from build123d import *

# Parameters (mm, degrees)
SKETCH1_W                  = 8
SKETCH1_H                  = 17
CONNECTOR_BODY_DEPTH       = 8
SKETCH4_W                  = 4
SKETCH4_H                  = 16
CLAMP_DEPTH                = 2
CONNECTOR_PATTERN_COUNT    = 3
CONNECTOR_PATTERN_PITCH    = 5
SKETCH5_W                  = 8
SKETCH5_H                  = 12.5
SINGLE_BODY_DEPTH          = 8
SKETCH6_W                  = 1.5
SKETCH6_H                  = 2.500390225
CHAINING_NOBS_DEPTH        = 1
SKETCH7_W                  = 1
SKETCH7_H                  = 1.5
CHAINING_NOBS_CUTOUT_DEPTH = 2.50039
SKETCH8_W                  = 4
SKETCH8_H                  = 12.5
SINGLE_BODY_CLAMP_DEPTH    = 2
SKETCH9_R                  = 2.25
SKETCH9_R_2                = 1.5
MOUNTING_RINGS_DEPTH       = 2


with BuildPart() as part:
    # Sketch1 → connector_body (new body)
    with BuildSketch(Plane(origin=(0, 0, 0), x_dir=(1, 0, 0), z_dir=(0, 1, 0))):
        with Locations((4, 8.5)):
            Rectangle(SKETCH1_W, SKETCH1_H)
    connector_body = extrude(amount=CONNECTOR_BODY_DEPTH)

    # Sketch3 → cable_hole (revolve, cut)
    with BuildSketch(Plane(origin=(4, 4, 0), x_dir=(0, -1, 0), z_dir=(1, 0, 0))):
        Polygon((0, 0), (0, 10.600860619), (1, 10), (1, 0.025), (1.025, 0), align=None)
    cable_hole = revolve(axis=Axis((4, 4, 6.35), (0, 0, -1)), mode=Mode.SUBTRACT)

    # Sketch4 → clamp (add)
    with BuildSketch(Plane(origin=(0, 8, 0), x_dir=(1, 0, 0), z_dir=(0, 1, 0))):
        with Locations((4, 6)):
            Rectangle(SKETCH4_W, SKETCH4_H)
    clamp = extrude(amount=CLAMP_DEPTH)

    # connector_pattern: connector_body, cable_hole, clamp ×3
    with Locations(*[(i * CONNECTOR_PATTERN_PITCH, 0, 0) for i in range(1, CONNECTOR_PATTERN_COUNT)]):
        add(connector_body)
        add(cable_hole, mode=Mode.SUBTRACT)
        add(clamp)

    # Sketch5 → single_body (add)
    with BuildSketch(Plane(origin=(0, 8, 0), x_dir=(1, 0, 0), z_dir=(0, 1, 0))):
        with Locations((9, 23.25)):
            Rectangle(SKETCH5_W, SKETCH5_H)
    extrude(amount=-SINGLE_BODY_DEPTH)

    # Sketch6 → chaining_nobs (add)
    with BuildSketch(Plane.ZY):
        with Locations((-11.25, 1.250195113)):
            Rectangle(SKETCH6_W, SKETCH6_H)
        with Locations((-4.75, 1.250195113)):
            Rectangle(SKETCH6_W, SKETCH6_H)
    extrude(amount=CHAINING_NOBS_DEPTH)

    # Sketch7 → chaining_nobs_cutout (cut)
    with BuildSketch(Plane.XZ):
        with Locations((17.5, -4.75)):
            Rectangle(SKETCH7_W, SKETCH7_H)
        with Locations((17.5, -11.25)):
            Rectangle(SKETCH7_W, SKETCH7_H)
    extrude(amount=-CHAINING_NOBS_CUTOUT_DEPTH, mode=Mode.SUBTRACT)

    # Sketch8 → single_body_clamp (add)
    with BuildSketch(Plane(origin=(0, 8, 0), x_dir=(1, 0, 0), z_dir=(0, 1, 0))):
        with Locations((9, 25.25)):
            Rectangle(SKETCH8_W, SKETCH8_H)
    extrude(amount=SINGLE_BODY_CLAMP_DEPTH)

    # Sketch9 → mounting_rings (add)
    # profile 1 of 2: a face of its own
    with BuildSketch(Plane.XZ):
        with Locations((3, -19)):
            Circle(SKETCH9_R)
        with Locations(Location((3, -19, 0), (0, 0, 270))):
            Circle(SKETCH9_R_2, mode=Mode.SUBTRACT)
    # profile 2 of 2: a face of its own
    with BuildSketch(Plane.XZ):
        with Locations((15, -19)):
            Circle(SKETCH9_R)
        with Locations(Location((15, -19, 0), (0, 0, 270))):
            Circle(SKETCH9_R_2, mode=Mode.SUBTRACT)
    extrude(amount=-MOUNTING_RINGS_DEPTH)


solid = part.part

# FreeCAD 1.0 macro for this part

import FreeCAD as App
import Part
import Sketcher
Q = App.Units.Quantity

doc = App.newDocument("Part")
body = doc.addObject("PartDesign::Body", "Body")

sketch1 = body.newObject("Sketcher::SketchObject", "Sketch")
sketch1.AttachmentSupport = (doc.getObject("XZ_Plane"), [""])
sketch1.MapMode = "FlatFace"
sketch1.addGeometry([
    Part.LineSegment(App.Vector(0, -17, 0), App.Vector(0, 0, 0)),
    Part.LineSegment(App.Vector(0, 0, 0), App.Vector(8, 0, 0)),
    Part.LineSegment(App.Vector(8, 0, 0), App.Vector(8, -17, 0)),
    Part.LineSegment(App.Vector(8, -17, 0), App.Vector(0, -17, 0)),
], False)
sketch1.addConstraint([
    Sketcher.Constraint("Coincident", 0, 2, 1, 1),
    Sketcher.Constraint("Coincident", 1, 2, 2, 1),
    Sketcher.Constraint("Coincident", 2, 2, 3, 1),
    Sketcher.Constraint("Coincident", 3, 2, 0, 1),
    Sketcher.Constraint("Vertical", 0),
    Sketcher.Constraint("Horizontal", 1),
    Sketcher.Constraint("Vertical", 2),
    Sketcher.Constraint("Horizontal", 3),
    Sketcher.Constraint("Coincident", 0, 2, -1, 1),
    Sketcher.Constraint("DistanceX", 1, 1, 1, 2, Q("8 mm")),
    Sketcher.Constraint("DistanceY", 0, 1, 0, 2, Q("17 mm")),
])
pad1 = body.newObject("PartDesign::Pad", "Pad")
pad1.Profile = sketch1
pad1.Length = 8
pad1.Reversed = True

sketch2 = body.newObject("Sketcher::SketchObject", "Sketch001")
sketch2.AttachmentSupport = (doc.getObject("YZ_Plane"), [""])
sketch2.MapMode = "FlatFace"
sketch2.AttachmentOffset = App.Placement(App.Vector(0, 0, 4), App.Rotation())
sketch2.addGeometry([
    Part.LineSegment(App.Vector(4, -10.600861, 0), App.Vector(4, 0, 0)),
    Part.LineSegment(App.Vector(4, 0, 0), App.Vector(2.975, 0, 0)),
    Part.LineSegment(App.Vector(2.975, 0, 0), App.Vector(3, -0.025, 0)),
    Part.LineSegment(App.Vector(3, -0.025, 0), App.Vector(3, -10, 0)),
    Part.LineSegment(App.Vector(3, -10, 0), App.Vector(4, -10.600861, 0)),
], False)
sketch2.addGeometry(Part.LineSegment(App.Vector(4, 0, 0), App.Vector(4, -10.600861, 0)), True)
sketch2.addConstraint([
    Sketcher.Constraint("Coincident", 0, 2, 1, 1),
    Sketcher.Constraint("Coincident", 1, 2, 2, 1),
    Sketcher.Constraint("Coincident", 2, 2, 3, 1),
    Sketcher.Constraint("Coincident", 3, 2, 4, 1),
    Sketcher.Constraint("Coincident", 4, 2, 0, 1),
    Sketcher.Constraint("Vertical", 0),
    Sketcher.Constraint("Horizontal", 1),
    Sketcher.Constraint("Vertical", 3),
    Sketcher.Constraint("Vertical", 5),
    Sketcher.Constraint("Coincident", 5, 1, 0, 2),
    Sketcher.Constraint("PointOnObject", 0, 2, -1),
    Sketcher.Constraint("Equal", 0, 5),
    Sketcher.Constraint("Angle", 2, Q("-45 deg")),
    Sketcher.Constraint("Angle", 4, Q("-31 deg")),
    Sketcher.Constraint("DistanceX", -1, 1, 0, 2, Q("4 mm")),
    Sketcher.Constraint("DistanceX", -1, 1, 2, 2, Q("3 mm")),
    Sketcher.Constraint("DistanceY", 3, 2, -1, 1, Q("10 mm")),
    Sketcher.Constraint("DistanceX", 1, 2, 1, 1, Q("1.025 mm")),
])
groove = body.newObject("PartDesign::Groove", "Groove")
groove.Profile = sketch2
groove.ReferenceAxis = (sketch2, ["Axis0"])
groove.Angle = 360

sketch3 = body.newObject("Sketcher::SketchObject", "Sketch002")
sketch3.AttachmentSupport = (doc.getObject("XZ_Plane"), [""])
sketch3.MapMode = "FlatFace"
sketch3.AttachmentOffset = App.Placement(App.Vector(0, 0, -8), App.Rotation())
sketch3.addGeometry([
    Part.LineSegment(App.Vector(2, -14, 0), App.Vector(2, 2, 0)),
    Part.LineSegment(App.Vector(2, 2, 0), App.Vector(6, 2, 0)),
    Part.LineSegment(App.Vector(6, 2, 0), App.Vector(6, -14, 0)),
    Part.LineSegment(App.Vector(6, -14, 0), App.Vector(2, -14, 0)),
], False)
sketch3.addConstraint([
    Sketcher.Constraint("Coincident", 0, 2, 1, 1),
    Sketcher.Constraint("Coincident", 1, 2, 2, 1),
    Sketcher.Constraint("Coincident", 2, 2, 3, 1),
    Sketcher.Constraint("Coincident", 3, 2, 0, 1),
    Sketcher.Constraint("Vertical", 0),
    Sketcher.Constraint("Horizontal", 1),
    Sketcher.Constraint("Vertical", 2),
    Sketcher.Constraint("Horizontal", 3),
    Sketcher.Constraint("DistanceX", 1, 1, 1, 2, Q("4 mm")),
    Sketcher.Constraint("DistanceY", 0, 1, 0, 2, Q("16 mm")),
    Sketcher.Constraint("DistanceX", -1, 1, 0, 2, Q("2 mm")),
    Sketcher.Constraint("DistanceY", -1, 1, 0, 2, Q("2 mm")),
])
pad2 = body.newObject("PartDesign::Pad", "Pad001")
pad2.Profile = sketch3
pad2.Length = 2
pad2.Reversed = True
doc.recompute()

linearpattern = body.newObject("PartDesign::LinearPattern", "LinearPattern")
linearpattern.Originals = [pad1, groove, pad2]
linearpattern.Direction = (doc.getObject("X_Axis"), [""])
linearpattern.Mode = "offset"
linearpattern.Offset = 5
linearpattern.Occurrences = 3
body.Tip = linearpattern

sketch4 = body.newObject("Sketcher::SketchObject", "Sketch003")
sketch4.AttachmentSupport = (doc.getObject("XZ_Plane"), [""])
sketch4.MapMode = "FlatFace"
sketch4.AttachmentOffset = App.Placement(App.Vector(0, 0, -8), App.Rotation())
sketch4.addGeometry([
    Part.LineSegment(App.Vector(5, -29.5, 0), App.Vector(5, -17, 0)),
    Part.LineSegment(App.Vector(5, -17, 0), App.Vector(13, -17, 0)),
    Part.LineSegment(App.Vector(13, -17, 0), App.Vector(13, -29.5, 0)),
    Part.LineSegment(App.Vector(13, -29.5, 0), App.Vector(5, -29.5, 0)),
], False)
sketch4.addConstraint([
    Sketcher.Constraint("Coincident", 0, 2, 1, 1),
    Sketcher.Constraint("Coincident", 1, 2, 2, 1),
    Sketcher.Constraint("Coincident", 2, 2, 3, 1),
    Sketcher.Constraint("Coincident", 3, 2, 0, 1),
    Sketcher.Constraint("Vertical", 0),
    Sketcher.Constraint("Horizontal", 1),
    Sketcher.Constraint("Vertical", 2),
    Sketcher.Constraint("Horizontal", 3),
    Sketcher.Constraint("DistanceX", 1, 1, 1, 2, Q("8 mm")),
    Sketcher.Constraint("DistanceY", 0, 1, 0, 2, Q("12.5 mm")),
    Sketcher.Constraint("DistanceX", -1, 1, 0, 2, Q("5 mm")),
    Sketcher.Constraint("DistanceY", 0, 2, -1, 1, Q("17 mm")),
])
pad3 = body.newObject("PartDesign::Pad", "Pad002")
pad3.Profile = sketch4
pad3.Length = 8

sketch5 = body.newObject("Sketcher::SketchObject", "Sketch004")
sketch5.AttachmentSupport = (doc.getObject("YZ_Plane"), [""])
sketch5.MapMode = "FlatFace"
sketch5.addGeometry([
    Part.LineSegment(App.Vector(2.50039, -12, 0), App.Vector(0, -12, 0)),
    Part.LineSegment(App.Vector(0, -12, 0), App.Vector(0, -10.5, 0)),
    Part.LineSegment(App.Vector(0, -10.5, 0), App.Vector(2.50039, -10.5, 0)),
    Part.LineSegment(App.Vector(2.50039, -10.5, 0), App.Vector(2.50039, -12, 0)),
    Part.LineSegment(App.Vector(2.50039, -5.5, 0), App.Vector(0, -5.5, 0)),
    Part.LineSegment(App.Vector(0, -5.5, 0), App.Vector(0, -4, 0)),
    Part.LineSegment(App.Vector(0, -4, 0), App.Vector(2.50039, -4, 0)),
    Part.LineSegment(App.Vector(2.50039, -4, 0), App.Vector(2.50039, -5.5, 0)),
], False)
sketch5.addConstraint([
    Sketcher.Constraint("Coincident", 0, 2, 1, 1),
    Sketcher.Constraint("Coincident", 1, 2, 2, 1),
    Sketcher.Constraint("Coincident", 2, 2, 3, 1),
    Sketcher.Constraint("Coincident", 3, 2, 0, 1),
    Sketcher.Constraint("Coincident", 4, 2, 5, 1),
    Sketcher.Constraint("Coincident", 5, 2, 6, 1),
    Sketcher.Constraint("Coincident", 6, 2, 7, 1),
    Sketcher.Constraint("Coincident", 7, 2, 4, 1),
    Sketcher.Constraint("Horizontal", 0),
    Sketcher.Constraint("Vertical", 1),
    Sketcher.Constraint("Horizontal", 2),
    Sketcher.Constraint("Vertical", 3),
    Sketcher.Constraint("Horizontal", 4),
    Sketcher.Constraint("Vertical", 5),
    Sketcher.Constraint("Horizontal", 6),
    Sketcher.Constraint("Vertical", 7),
    Sketcher.Constraint("PointOnObject", 0, 2, -2),
    Sketcher.Constraint("PointOnObject", 4, 2, -2),
    Sketcher.Constraint("Vertical", 3, 2, 6, 2),
    Sketcher.Constraint("Equal", 3, 5),
    Sketcher.Constraint("DistanceY", 1, 1, 1, 2, Q("1.5 mm")),
    Sketcher.Constraint("DistanceY", 0, 2, -1, 1, Q("12 mm")),
    Sketcher.Constraint("DistanceY", 5, 2, -1, 1, Q("4 mm")),
    Sketcher.Constraint("DistanceX", 0, 2, 0, 1, Q("2.50039 mm")),
])
pad4 = body.newObject("PartDesign::Pad", "Pad003")
pad4.Profile = sketch5
pad4.Length = 1
pad4.Reversed = True

sketch6 = body.newObject("Sketcher::SketchObject", "Sketch005")
sketch6.AttachmentSupport = (doc.getObject("XZ_Plane"), [""])
sketch6.MapMode = "FlatFace"
sketch6.addGeometry([
    Part.LineSegment(App.Vector(17, -4, 0), App.Vector(17, -5.5, 0)),
    Part.LineSegment(App.Vector(17, -5.5, 0), App.Vector(18, -5.5, 0)),
    Part.LineSegment(App.Vector(18, -5.5, 0), App.Vector(18, -4, 0)),
    Part.LineSegment(App.Vector(18, -4, 0), App.Vector(17, -4, 0)),
    Part.LineSegment(App.Vector(17, -10.5, 0), App.Vector(17, -12, 0)),
    Part.LineSegment(App.Vector(17, -12, 0), App.Vector(18, -12, 0)),
    Part.LineSegment(App.Vector(18, -12, 0), App.Vector(18, -10.5, 0)),
    Part.LineSegment(App.Vector(18, -10.5, 0), App.Vector(17, -10.5, 0)),
], False)
sketch6.addConstraint([
    Sketcher.Constraint("Coincident", 0, 2, 1, 1),
    Sketcher.Constraint("Coincident", 1, 2, 2, 1),
    Sketcher.Constraint("Coincident", 2, 2, 3, 1),
    Sketcher.Constraint("Coincident", 3, 2, 0, 1),
    Sketcher.Constraint("Coincident", 4, 2, 5, 1),
    Sketcher.Constraint("Coincident", 5, 2, 6, 1),
    Sketcher.Constraint("Coincident", 6, 2, 7, 1),
    Sketcher.Constraint("Coincident", 7, 2, 4, 1),
    Sketcher.Constraint("Vertical", 0),
    Sketcher.Constraint("Horizontal", 1),
    Sketcher.Constraint("Vertical", 2),
    Sketcher.Constraint("Horizontal", 3),
    Sketcher.Constraint("Vertical", 4),
    Sketcher.Constraint("Horizontal", 5),
    Sketcher.Constraint("Vertical", 6),
    Sketcher.Constraint("Horizontal", 7),
    Sketcher.Constraint("Vertical", 3, 2, 4, 2),
    Sketcher.Constraint("Vertical", 2, 2, 5, 2),
    Sketcher.Constraint("Equal", 2, 4),
    Sketcher.Constraint("DistanceX", 1, 1, 1, 2, Q("1 mm")),
    Sketcher.Constraint("DistanceY", 0, 2, 0, 1, Q("1.5 mm")),
    Sketcher.Constraint("DistanceX", -1, 1, 0, 2, Q("17 mm")),
    Sketcher.Constraint("DistanceY", 2, 2, -1, 1, Q("4 mm")),
    Sketcher.Constraint("DistanceY", 4, 2, -1, 1, Q("12 mm")),
])
pocket1 = body.newObject("PartDesign::Pocket", "Pocket")
pocket1.Profile = sketch6
pocket1.Length = 2.50039

sketch7 = body.newObject("Sketcher::SketchObject", "Sketch006")
sketch7.AttachmentSupport = (doc.getObject("XZ_Plane"), [""])
sketch7.MapMode = "FlatFace"
sketch7.AttachmentOffset = App.Placement(App.Vector(0, 0, -8), App.Rotation())
sketch7.addGeometry([
    Part.LineSegment(App.Vector(7, -31.5, 0), App.Vector(7, -19, 0)),
    Part.LineSegment(App.Vector(7, -19, 0), App.Vector(11, -19, 0)),
    Part.LineSegment(App.Vector(11, -19, 0), App.Vector(11, -31.5, 0)),
    Part.LineSegment(App.Vector(11, -31.5, 0), App.Vector(7, -31.5, 0)),
], False)
sketch7.addConstraint([
    Sketcher.Constraint("Coincident", 0, 2, 1, 1),
    Sketcher.Constraint("Coincident", 1, 2, 2, 1),
    Sketcher.Constraint("Coincident", 2, 2, 3, 1),
    Sketcher.Constraint("Coincident", 3, 2, 0, 1),
    Sketcher.Constraint("Vertical", 0),
    Sketcher.Constraint("Horizontal", 1),
    Sketcher.Constraint("Vertical", 2),
    Sketcher.Constraint("Horizontal", 3),
    Sketcher.Constraint("DistanceX", 1, 1, 1, 2, Q("4 mm")),
    Sketcher.Constraint("DistanceY", 0, 1, 0, 2, Q("12.5 mm")),
    Sketcher.Constraint("DistanceX", -1, 1, 0, 2, Q("7 mm")),
    Sketcher.Constraint("DistanceY", 0, 2, -1, 1, Q("19 mm")),
])
pad5 = body.newObject("PartDesign::Pad", "Pad004")
pad5.Profile = sketch7
pad5.Length = 2
pad5.Reversed = True

sketch8 = body.newObject("Sketcher::SketchObject", "Sketch007")
sketch8.AttachmentSupport = (doc.getObject("XZ_Plane"), [""])
sketch8.MapMode = "FlatFace"
sketch8.addGeometry([
    Part.Circle(App.Vector(3, -19, 0), App.Vector(0, 0, 1), 2.25),
    Part.Circle(App.Vector(3, -19, 0), App.Vector(0, 0, 1), 1.5),
    Part.Circle(App.Vector(15, -19, 0), App.Vector(0, 0, 1), 2.25),
    Part.Circle(App.Vector(15, -19, 0), App.Vector(0, 0, 1), 1.5),
], False)
sketch8.addConstraint([
    Sketcher.Constraint("Coincident", 1, 3, 0, 3),
    Sketcher.Constraint("Coincident", 3, 3, 2, 3),
    Sketcher.Constraint("Equal", 0, 2),
    Sketcher.Constraint("Equal", 1, 3),
    Sketcher.Constraint("Horizontal", 1, 3, 2, 3),
    Sketcher.Constraint("Diameter", 1, Q("3 mm")),
    Sketcher.Constraint("Diameter", 0, Q("4.5 mm")),
    Sketcher.Constraint("DistanceX", -1, 1, 0, 3, Q("3 mm")),
    Sketcher.Constraint("DistanceY", 0, 3, -1, 1, Q("19 mm")),
    Sketcher.Constraint("DistanceX", -1, 1, 2, 3, Q("15 mm")),
])
pad6 = body.newObject("PartDesign::Pad", "Pad005")
pad6.Profile = sketch8
pad6.Length = 2
pad6.Reversed = True

doc.recompute()
